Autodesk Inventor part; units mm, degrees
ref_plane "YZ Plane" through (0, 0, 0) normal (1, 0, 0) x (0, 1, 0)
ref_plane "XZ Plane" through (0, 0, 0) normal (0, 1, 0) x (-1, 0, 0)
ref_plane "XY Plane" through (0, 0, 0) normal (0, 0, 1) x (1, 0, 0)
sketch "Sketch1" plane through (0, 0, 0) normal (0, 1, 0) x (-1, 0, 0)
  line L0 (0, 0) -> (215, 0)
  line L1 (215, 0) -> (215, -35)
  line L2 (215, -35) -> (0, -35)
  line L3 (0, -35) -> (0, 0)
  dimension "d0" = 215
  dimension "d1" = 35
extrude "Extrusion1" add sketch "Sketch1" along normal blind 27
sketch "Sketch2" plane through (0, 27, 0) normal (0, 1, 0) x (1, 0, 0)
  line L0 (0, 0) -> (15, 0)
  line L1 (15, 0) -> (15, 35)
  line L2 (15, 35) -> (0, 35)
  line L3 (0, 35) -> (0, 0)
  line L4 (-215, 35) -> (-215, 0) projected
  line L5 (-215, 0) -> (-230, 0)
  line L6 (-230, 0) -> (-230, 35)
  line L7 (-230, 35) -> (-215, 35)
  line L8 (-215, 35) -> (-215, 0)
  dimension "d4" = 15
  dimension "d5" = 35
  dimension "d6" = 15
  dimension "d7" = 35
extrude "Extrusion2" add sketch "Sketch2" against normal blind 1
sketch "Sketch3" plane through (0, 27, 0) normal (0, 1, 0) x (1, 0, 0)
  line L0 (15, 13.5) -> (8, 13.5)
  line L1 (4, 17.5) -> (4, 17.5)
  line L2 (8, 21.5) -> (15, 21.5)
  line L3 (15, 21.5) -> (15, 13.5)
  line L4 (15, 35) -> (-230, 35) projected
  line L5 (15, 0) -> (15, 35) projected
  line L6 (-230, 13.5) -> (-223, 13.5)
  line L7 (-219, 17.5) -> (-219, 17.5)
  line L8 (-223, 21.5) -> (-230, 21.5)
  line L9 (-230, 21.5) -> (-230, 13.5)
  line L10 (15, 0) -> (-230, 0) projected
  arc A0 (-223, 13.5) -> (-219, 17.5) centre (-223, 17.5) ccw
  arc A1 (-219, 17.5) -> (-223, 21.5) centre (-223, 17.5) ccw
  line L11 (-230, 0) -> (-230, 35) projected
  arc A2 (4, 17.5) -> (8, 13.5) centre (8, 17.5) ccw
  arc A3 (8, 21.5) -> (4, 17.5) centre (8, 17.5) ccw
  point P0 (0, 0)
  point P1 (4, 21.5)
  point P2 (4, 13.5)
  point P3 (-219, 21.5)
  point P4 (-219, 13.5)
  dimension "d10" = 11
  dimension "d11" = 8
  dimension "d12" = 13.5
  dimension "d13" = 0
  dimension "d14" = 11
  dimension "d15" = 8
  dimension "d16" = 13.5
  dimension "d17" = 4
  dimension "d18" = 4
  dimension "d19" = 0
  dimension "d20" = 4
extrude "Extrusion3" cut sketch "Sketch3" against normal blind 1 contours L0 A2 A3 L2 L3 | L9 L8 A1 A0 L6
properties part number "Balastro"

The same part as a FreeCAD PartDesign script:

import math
import FreeCAD as App
import Part
import Sketcher
from FreeCAD import Vector


def add_polygon(sketch, points):
    """Adds a closed chain of lines whose ends are joined by coincident constraints."""
    first, n = sketch.GeometryCount, len(points)
    for a, b in zip(points, points[1:] + points[:1]):
        sketch.addGeometry(Part.LineSegment(App.Vector(*a, 0), App.Vector(*b, 0)), False)
    for i in range(n):
        sketch.addConstraint(Sketcher.Constraint("Coincident", first + i, 2, first + (i + 1) % n, 1))

doc = App.newDocument("Part")
params = doc.addObject("Spreadsheet::Sheet", "Params")
for row, (alias, value) in enumerate([
    ("sketch1_width", "215 mm"),
    ("sketch1_height", "35 mm"),
    ("pad1_length", "27 mm"),
    ("sketch2_width", "15 mm"),
    ("sketch2_height", "35 mm"),
    ("pad2_length", "1 mm"),
    ("sketch3_radius", "4 mm"),
    ("sketch3_width", "7 mm"),
    ("pocket1_length", "1 mm"),
], start=1):
    params.set(f"A{row}", alias)
    params.set(f"B{row}", "=" + value)
    params.setAlias(f"B{row}", alias)

body = doc.addObject("PartDesign::Body", "Body")

sketch1 = body.newObject("Sketcher::SketchObject", "Sketch")
sketch1.AttachmentSupport = (doc.getObject("XZ_Plane"), [""])
sketch1.MapMode = "FlatFace"
add_polygon(sketch1, [(-215, 0), (0, 0), (0, -35), (-215, -35)])
sketch1.addConstraint([
    Sketcher.Constraint("Horizontal", 0),
    Sketcher.Constraint("Vertical", 1),
    Sketcher.Constraint("Horizontal", 2),
    Sketcher.Constraint("Vertical", 3),
    Sketcher.Constraint("Coincident", 0, 2, -1, 1),
    Sketcher.Constraint("DistanceX", 0, 1, 0, 2, 215.0),
    Sketcher.Constraint("DistanceY", 1, 2, 1, 1, 35.0),
])
sketch1.setExpression("Constraints[9]", "Params.sketch1_width")
sketch1.setExpression("Constraints[10]", "Params.sketch1_height")
pad1 = body.newObject("PartDesign::Pad", "Pad")
pad1.Profile = sketch1
pad1.setExpression("Length", "Params.pad1_length")
pad1.Reversed = True

sketch2 = body.newObject("Sketcher::SketchObject", "Sketch001")
sketch2.AttachmentSupport = (doc.getObject("XZ_Plane"), [""])
sketch2.MapMode = "FlatFace"
sketch2.AttachmentOffset = App.Placement(Vector(0, 0, -27), App.Rotation())
add_polygon(sketch2, [(0, -35), (0, 0), (15, 0), (15, -35)])
add_polygon(sketch2, [(-215, 0), (-215, -35), (-230, -35), (-230, 0)])
sketch2.addConstraint([
    Sketcher.Constraint("Vertical", 0),
    Sketcher.Constraint("Horizontal", 1),
    Sketcher.Constraint("Vertical", 2),
    Sketcher.Constraint("Horizontal", 3),
    Sketcher.Constraint("Vertical", 4),
    Sketcher.Constraint("Horizontal", 5),
    Sketcher.Constraint("Vertical", 6),
    Sketcher.Constraint("Horizontal", 7),
    Sketcher.Constraint("Coincident", 0, 2, -1, 1),
    Sketcher.Constraint("PointOnObject", 6, 2, -1),
    Sketcher.Constraint("Horizontal", 3, 2, 4, 2),
    Sketcher.Constraint("Equal", 3, 5),
    Sketcher.Constraint("DistanceX", 1, 1, 1, 2, 15.0),
    Sketcher.Constraint("DistanceY", 0, 1, 0, 2, 35.0),
    Sketcher.Constraint("DistanceX", 4, 2, -1, 1, 215.0),
])
sketch2.setExpression("Constraints[20]", "Params.sketch2_width")
sketch2.setExpression("Constraints[21]", "Params.sketch2_height")
pad2 = body.newObject("PartDesign::Pad", "Pad001")
pad2.Profile = sketch2
pad2.setExpression("Length", "Params.pad2_length")

sketch3 = body.newObject("Sketcher::SketchObject", "Sketch002")
sketch3.AttachmentSupport = (doc.getObject("XZ_Plane"), [""])
sketch3.MapMode = "FlatFace"
sketch3.AttachmentOffset = App.Placement(Vector(0, 0, -27), App.Rotation())
sketch3.addGeometry([
    Part.LineSegment(Vector(8, -13.5, 0), Vector(15, -13.5, 0)),
    Part.LineSegment(Vector(15, -13.5, 0), Vector(15, -21.5, 0)),
    Part.LineSegment(Vector(15, -21.5, 0), Vector(8, -21.5, 0)),
    Part.ArcOfCircle(Part.Circle(Vector(8, -17.5, 0), Vector(0, 0, 1), 4), math.radians(90), math.radians(270)),
    Part.LineSegment(Vector(-230, -21.5, 0), Vector(-230, -13.5, 0)),
    Part.LineSegment(Vector(-230, -13.5, 0), Vector(-223, -13.5, 0)),
    Part.ArcOfCircle(Part.Circle(Vector(-223, -17.5, 0), Vector(0, 0, 1), 4), math.radians(-90), math.radians(90)),
    Part.LineSegment(Vector(-223, -21.5, 0), Vector(-230, -21.5, 0)),
], False)
sketch3.addConstraint([
    Sketcher.Constraint("Coincident", 0, 2, 1, 1),
    Sketcher.Constraint("Coincident", 1, 2, 2, 1),
    Sketcher.Constraint("Tangent", 2, 2, 3, 2),
    Sketcher.Constraint("Tangent", 3, 1, 0, 1),
    Sketcher.Constraint("Coincident", 4, 2, 5, 1),
    Sketcher.Constraint("Tangent", 5, 2, 6, 2),
    Sketcher.Constraint("Tangent", 6, 1, 7, 1),
    Sketcher.Constraint("Coincident", 7, 2, 4, 1),
    Sketcher.Constraint("Horizontal", 0),
    Sketcher.Constraint("Vertical", 1),
    Sketcher.Constraint("Horizontal", 2),
    Sketcher.Constraint("Vertical", 4),
    Sketcher.Constraint("Horizontal", 5),
    Sketcher.Constraint("Horizontal", 7),
    Sketcher.Constraint("Equal", 3, 6),
    Sketcher.Constraint("Horizontal", 3, 3, 6, 3),
    Sketcher.Constraint("Equal", 2, 5),
    Sketcher.Constraint("Radius", 3, 4.0),
    Sketcher.Constraint("DistanceX", -1, 1, 3, 3, 8.0),
    Sketcher.Constraint("DistanceY", 0, 2, -1, 1, 13.5),
    Sketcher.Constraint("DistanceX", 0, 1, 0, 2, 7.0),
    Sketcher.Constraint("DistanceX", 6, 3, -1, 1, 223.0),
])
sketch3.setExpression("Constraints[17]", "Params.sketch3_radius")
sketch3.setExpression("Constraints[20]", "Params.sketch3_width")
pocket1 = body.newObject("PartDesign::Pocket", "Pocket")
pocket1.Profile = sketch3
pocket1.setExpression("Length", "Params.pocket1_length")
pocket1.Reversed = True

doc.recompute()
